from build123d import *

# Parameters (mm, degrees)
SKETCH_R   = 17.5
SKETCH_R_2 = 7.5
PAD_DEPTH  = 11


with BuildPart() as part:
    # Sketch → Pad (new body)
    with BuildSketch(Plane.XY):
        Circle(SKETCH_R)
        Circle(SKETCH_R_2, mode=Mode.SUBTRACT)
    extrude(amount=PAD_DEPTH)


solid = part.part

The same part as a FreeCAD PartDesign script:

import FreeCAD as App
import Part
import Sketcher
Q = App.Units.Quantity

doc = App.newDocument("Part")
params = doc.addObject("Spreadsheet::Sheet", "Params")
for row, (alias, value) in enumerate([
    ("sketch1_diameter", "35 mm"),
    ("sketch1_diameter2", "15 mm"),
    ("pad1_length", "11 mm"),
], start=1):
    params.set(f"A{row}", alias)
    params.set(f"B{row}", "=" + value)
    params.setAlias(f"B{row}", alias)

body = doc.addObject("PartDesign::Body", "Body")

# Sketch on XY plane
sketch1 = body.newObject("Sketcher::SketchObject", "Sketch")
sketch1.AttachmentSupport = (doc.getObject("XY_Plane"), [""])
sketch1.MapMode = "FlatFace"
sketch1.addGeometry([
    Part.Circle(App.Vector(0, 0, 0), App.Vector(0, 0, 1), 18),
    Part.Circle(App.Vector(0, 0, 0), App.Vector(0, 0, 1), 8),
], False)
sketch1.addConstraint([
    Sketcher.Constraint("Coincident", 0, 3, -1, 1),
    Sketcher.Constraint("Coincident", 1, 3, -1, 1),
    Sketcher.Constraint("Diameter", 0, Q("35 mm")),
    Sketcher.Constraint("Diameter", 1, Q("15 mm")),
])
sketch1.setExpression("Constraints[2]", "Params.sketch1_diameter")
sketch1.setExpression("Constraints[3]", "Params.sketch1_diameter2")
pad1 = body.newObject("PartDesign::Pad", "Pad")
pad1.Profile = sketch1
pad1.setExpression("Length", "Params.pad1_length")

doc.recompute()
